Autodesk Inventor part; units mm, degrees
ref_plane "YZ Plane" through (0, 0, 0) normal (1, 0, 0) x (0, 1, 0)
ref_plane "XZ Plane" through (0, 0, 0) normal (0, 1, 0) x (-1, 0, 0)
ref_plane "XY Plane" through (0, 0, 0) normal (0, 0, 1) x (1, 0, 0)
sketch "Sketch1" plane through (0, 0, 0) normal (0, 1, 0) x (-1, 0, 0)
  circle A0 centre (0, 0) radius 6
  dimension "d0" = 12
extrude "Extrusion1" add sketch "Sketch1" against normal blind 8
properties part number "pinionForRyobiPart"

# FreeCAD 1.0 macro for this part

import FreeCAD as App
import Part
import Sketcher
from FreeCAD import Vector

doc = App.newDocument("Part")
body = doc.addObject("PartDesign::Body", "Body")

# Sketch on XZ plane
sketch1 = body.newObject("Sketcher::SketchObject", "Sketch")
sketch1.AttachmentSupport = (doc.getObject("XZ_Plane"), [""])
sketch1.MapMode = "FlatFace"
sketch1.addGeometry(Part.Circle(Vector(0, 0, 0), Vector(0, 0, 1), 6), False)
sketch1.addConstraint([
    Sketcher.Constraint("Coincident", 0, 3, -1, 1),
    Sketcher.Constraint("Diameter", 0, 12.0),
])
pad1 = body.newObject("PartDesign::Pad", "Pad")
pad1.Profile = sketch1
pad1.Length = 8

doc.recompute()
